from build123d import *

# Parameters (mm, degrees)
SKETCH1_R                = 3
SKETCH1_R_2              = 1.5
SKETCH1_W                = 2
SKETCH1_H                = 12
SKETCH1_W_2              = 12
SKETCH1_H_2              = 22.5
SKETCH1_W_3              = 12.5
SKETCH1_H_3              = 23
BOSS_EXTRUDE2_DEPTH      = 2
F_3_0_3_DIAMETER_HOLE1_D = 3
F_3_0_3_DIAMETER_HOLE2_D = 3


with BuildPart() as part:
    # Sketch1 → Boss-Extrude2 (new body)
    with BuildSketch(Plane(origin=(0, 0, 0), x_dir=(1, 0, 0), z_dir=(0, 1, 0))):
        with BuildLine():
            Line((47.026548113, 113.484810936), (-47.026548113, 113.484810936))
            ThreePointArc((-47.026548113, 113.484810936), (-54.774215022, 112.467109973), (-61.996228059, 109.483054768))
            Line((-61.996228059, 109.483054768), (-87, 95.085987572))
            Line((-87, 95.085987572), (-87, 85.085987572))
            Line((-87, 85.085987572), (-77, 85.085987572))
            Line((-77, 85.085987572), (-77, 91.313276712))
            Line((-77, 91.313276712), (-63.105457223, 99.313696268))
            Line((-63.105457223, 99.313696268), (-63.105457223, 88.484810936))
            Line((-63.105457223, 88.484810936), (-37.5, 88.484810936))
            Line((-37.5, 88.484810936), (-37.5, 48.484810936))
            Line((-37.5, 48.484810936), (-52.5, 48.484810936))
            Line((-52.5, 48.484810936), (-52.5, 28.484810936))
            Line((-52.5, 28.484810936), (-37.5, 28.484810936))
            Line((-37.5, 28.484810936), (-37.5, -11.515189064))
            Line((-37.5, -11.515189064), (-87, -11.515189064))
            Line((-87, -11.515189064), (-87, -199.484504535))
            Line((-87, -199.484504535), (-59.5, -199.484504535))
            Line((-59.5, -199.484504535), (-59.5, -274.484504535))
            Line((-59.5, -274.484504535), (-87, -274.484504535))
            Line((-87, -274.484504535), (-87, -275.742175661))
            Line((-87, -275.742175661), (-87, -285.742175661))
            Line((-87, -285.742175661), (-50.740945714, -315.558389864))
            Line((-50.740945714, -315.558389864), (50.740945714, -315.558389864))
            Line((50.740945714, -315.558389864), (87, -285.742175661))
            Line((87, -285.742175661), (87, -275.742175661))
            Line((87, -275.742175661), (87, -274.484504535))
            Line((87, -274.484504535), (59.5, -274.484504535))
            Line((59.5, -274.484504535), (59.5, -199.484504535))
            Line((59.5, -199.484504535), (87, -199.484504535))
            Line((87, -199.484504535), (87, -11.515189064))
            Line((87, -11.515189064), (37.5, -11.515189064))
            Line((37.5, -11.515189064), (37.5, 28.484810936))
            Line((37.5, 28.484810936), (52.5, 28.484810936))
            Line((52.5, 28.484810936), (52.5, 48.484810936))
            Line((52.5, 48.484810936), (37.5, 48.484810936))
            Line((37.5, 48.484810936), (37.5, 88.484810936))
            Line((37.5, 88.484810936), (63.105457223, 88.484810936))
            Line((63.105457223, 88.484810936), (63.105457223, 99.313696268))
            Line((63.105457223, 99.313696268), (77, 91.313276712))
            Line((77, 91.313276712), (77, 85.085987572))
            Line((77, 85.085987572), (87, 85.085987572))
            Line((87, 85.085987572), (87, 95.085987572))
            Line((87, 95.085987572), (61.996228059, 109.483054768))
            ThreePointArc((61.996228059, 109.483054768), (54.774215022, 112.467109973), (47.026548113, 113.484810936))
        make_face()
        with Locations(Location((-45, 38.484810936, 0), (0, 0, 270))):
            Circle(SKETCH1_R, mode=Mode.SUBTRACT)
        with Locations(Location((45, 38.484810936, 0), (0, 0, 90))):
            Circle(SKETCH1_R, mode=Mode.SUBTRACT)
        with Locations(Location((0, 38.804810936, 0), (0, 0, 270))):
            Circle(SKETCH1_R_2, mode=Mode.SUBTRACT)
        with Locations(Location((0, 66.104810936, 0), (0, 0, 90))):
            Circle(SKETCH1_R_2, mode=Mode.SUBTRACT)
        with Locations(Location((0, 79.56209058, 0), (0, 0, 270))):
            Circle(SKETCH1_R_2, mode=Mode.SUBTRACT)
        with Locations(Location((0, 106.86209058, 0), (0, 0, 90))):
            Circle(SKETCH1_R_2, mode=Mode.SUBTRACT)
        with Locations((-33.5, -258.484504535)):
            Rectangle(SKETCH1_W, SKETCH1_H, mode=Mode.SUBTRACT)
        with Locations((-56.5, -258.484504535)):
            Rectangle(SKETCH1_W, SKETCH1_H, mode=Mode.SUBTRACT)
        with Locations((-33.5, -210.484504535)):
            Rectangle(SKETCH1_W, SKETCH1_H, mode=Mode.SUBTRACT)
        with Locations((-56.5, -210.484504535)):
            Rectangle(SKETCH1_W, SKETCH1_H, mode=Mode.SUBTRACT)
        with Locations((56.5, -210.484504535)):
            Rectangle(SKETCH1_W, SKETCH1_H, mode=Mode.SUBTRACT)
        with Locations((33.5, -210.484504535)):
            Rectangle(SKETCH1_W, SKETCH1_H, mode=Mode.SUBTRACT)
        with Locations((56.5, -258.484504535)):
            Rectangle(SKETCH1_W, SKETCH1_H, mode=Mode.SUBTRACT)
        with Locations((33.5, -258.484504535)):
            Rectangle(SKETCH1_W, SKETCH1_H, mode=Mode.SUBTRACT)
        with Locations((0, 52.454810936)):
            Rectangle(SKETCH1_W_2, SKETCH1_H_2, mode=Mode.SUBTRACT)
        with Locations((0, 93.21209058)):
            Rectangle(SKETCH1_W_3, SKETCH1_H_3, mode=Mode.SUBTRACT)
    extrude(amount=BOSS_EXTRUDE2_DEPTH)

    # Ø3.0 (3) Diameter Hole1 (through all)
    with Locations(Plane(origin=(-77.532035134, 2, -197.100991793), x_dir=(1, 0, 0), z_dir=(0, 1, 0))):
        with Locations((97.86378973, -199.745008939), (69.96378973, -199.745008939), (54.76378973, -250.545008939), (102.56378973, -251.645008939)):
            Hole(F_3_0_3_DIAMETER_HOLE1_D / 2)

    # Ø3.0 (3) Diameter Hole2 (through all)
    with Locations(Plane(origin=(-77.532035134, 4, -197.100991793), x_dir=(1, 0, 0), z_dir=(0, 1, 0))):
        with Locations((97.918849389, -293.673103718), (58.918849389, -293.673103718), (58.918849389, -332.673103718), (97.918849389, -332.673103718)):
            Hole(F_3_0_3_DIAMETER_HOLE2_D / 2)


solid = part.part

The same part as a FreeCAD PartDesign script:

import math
import FreeCAD as App
import Part
import Sketcher

V = App.Vector

doc = App.newDocument("Part")
body = doc.addObject("PartDesign::Body", "Body")

sketch1 = doc.addObject("Sketcher::SketchObject", "Sketch")
body.addObject(sketch1)
sketch1.AttachmentSupport = (doc.XZ_Plane, [""])
sketch1.MapMode = "FlatFace"
sketch1.addGeometry(Part.LineSegment(V(47, -113.5, 0), V(-47, -113.5, 0)), False)
sketch1.addGeometry(Part.ArcOfCircle(Part.Circle(V(-47, -83.5, 0), V(0, 0, 1), 30), math.radians(-120), math.radians(-90)), False)
sketch1.addGeometry(Part.LineSegment(V(-62, -109.5, 0), V(-87, -95.1, 0)), False)
sketch1.addGeometry(Part.LineSegment(V(-87, -95.1, 0), V(-87, -85.1, 0)), False)
sketch1.addGeometry(Part.LineSegment(V(-87, -85.1, 0), V(-77, -85.1, 0)), False)
sketch1.addGeometry(Part.LineSegment(V(-77, -85.1, 0), V(-77, -91.3, 0)), False)
sketch1.addGeometry(Part.LineSegment(V(-77, -91.3, 0), V(-63.1, -99.3, 0)), False)
sketch1.addGeometry(Part.LineSegment(V(-63.1, -99.3, 0), V(-63.1, -88.5, 0)), False)
sketch1.addGeometry(Part.LineSegment(V(-63.1, -88.5, 0), V(-37.5, -88.5, 0)), False)
sketch1.addGeometry(Part.LineSegment(V(-37.5, -88.5, 0), V(-37.5, -48.5, 0)), False)
sketch1.addGeometry(Part.LineSegment(V(-37.5, -48.5, 0), V(-52.5, -48.5, 0)), False)
sketch1.addGeometry(Part.LineSegment(V(-52.5, -48.5, 0), V(-52.5, -28.5, 0)), False)
sketch1.addGeometry(Part.LineSegment(V(-52.5, -28.5, 0), V(-37.5, -28.5, 0)), False)
sketch1.addGeometry(Part.LineSegment(V(-37.5, -28.5, 0), V(-37.5, 11.5, 0)), False)
sketch1.addGeometry(Part.LineSegment(V(-37.5, 11.5, 0), V(-87, 11.5, 0)), False)
sketch1.addGeometry(Part.LineSegment(V(-87, 11.5, 0), V(-87, 199.5, 0)), False)
sketch1.addGeometry(Part.LineSegment(V(-87, 199.5, 0), V(-59.5, 199.5, 0)), False)
sketch1.addGeometry(Part.LineSegment(V(-59.5, 199.5, 0), V(-59.5, 274.5, 0)), False)
sketch1.addGeometry(Part.LineSegment(V(-59.5, 274.5, 0), V(-87, 274.5, 0)), False)
sketch1.addGeometry(Part.LineSegment(V(-87, 274.5, 0), V(-87, 285.7, 0)), False)
sketch1.addGeometry(Part.LineSegment(V(-87, 285.7, 0), V(-50.7, 315.6, 0)), False)
sketch1.addGeometry(Part.LineSegment(V(-50.7, 315.6, 0), V(50.7, 315.6, 0)), False)
sketch1.addGeometry(Part.LineSegment(V(50.7, 315.6, 0), V(87, 285.7, 0)), False)
sketch1.addGeometry(Part.LineSegment(V(87, 285.7, 0), V(87, 274.5, 0)), False)
sketch1.addGeometry(Part.LineSegment(V(87, 274.5, 0), V(59.5, 274.5, 0)), False)
sketch1.addGeometry(Part.LineSegment(V(59.5, 274.5, 0), V(59.5, 199.5, 0)), False)
sketch1.addGeometry(Part.LineSegment(V(59.5, 199.5, 0), V(87, 199.5, 0)), False)
sketch1.addGeometry(Part.LineSegment(V(87, 199.5, 0), V(87, 11.5, 0)), False)
sketch1.addGeometry(Part.LineSegment(V(87, 11.5, 0), V(37.5, 11.5, 0)), False)
sketch1.addGeometry(Part.LineSegment(V(37.5, 11.5, 0), V(37.5, -28.5, 0)), False)
sketch1.addGeometry(Part.LineSegment(V(37.5, -28.5, 0), V(52.5, -28.5, 0)), False)
sketch1.addGeometry(Part.LineSegment(V(52.5, -28.5, 0), V(52.5, -48.5, 0)), False)
sketch1.addGeometry(Part.LineSegment(V(52.5, -48.5, 0), V(37.5, -48.5, 0)), False)
sketch1.addGeometry(Part.LineSegment(V(37.5, -48.5, 0), V(37.5, -88.5, 0)), False)
sketch1.addGeometry(Part.LineSegment(V(37.5, -88.5, 0), V(63.1, -88.5, 0)), False)
sketch1.addGeometry(Part.LineSegment(V(63.1, -88.5, 0), V(63.1, -99.3, 0)), False)
sketch1.addGeometry(Part.LineSegment(V(63.1, -99.3, 0), V(77, -91.3, 0)), False)
sketch1.addGeometry(Part.LineSegment(V(77, -91.3, 0), V(77, -85.1, 0)), False)
sketch1.addGeometry(Part.LineSegment(V(77, -85.1, 0), V(87, -85.1, 0)), False)
sketch1.addGeometry(Part.LineSegment(V(87, -85.1, 0), V(87, -95.1, 0)), False)
sketch1.addGeometry(Part.LineSegment(V(87, -95.1, 0), V(62, -109.5, 0)), False)
sketch1.addGeometry(Part.ArcOfCircle(Part.Circle(V(47, -83.5, 0), V(0, 0, 1), 30), math.radians(-90), math.radians(-60)), False)
sketch1.addGeometry(Part.LineSegment(V(-55.5, 264.5, 0), V(-57.5, 264.5, 0)), False)
sketch1.addGeometry(Part.LineSegment(V(-57.5, 264.5, 0), V(-57.5, 252.5, 0)), False)
sketch1.addGeometry(Part.LineSegment(V(-57.5, 252.5, 0), V(-55.5, 252.5, 0)), False)
sketch1.addGeometry(Part.LineSegment(V(-55.5, 252.5, 0), V(-55.5, 264.5, 0)), False)
sketch1.addGeometry(Part.LineSegment(V(-32.5, 264.5, 0), V(-34.5, 264.5, 0)), False)
sketch1.addGeometry(Part.LineSegment(V(-34.5, 264.5, 0), V(-34.5, 252.5, 0)), False)
sketch1.addGeometry(Part.LineSegment(V(-34.5, 252.5, 0), V(-32.5, 252.5, 0)), False)
sketch1.addGeometry(Part.LineSegment(V(-32.5, 252.5, 0), V(-32.5, 264.5, 0)), False)
sketch1.addGeometry(Part.LineSegment(V(-55.5, 216.5, 0), V(-57.5, 216.5, 0)), False)
sketch1.addGeometry(Part.LineSegment(V(-57.5, 216.5, 0), V(-57.5, 204.5, 0)), False)
sketch1.addGeometry(Part.LineSegment(V(-57.5, 204.5, 0), V(-55.5, 204.5, 0)), False)
sketch1.addGeometry(Part.LineSegment(V(-55.5, 204.5, 0), V(-55.5, 216.5, 0)), False)
sketch1.addGeometry(Part.LineSegment(V(-32.5, 216.5, 0), V(-34.5, 216.5, 0)), False)
sketch1.addGeometry(Part.LineSegment(V(-34.5, 216.5, 0), V(-34.5, 204.5, 0)), False)
sketch1.addGeometry(Part.LineSegment(V(-34.5, 204.5, 0), V(-32.5, 204.5, 0)), False)
sketch1.addGeometry(Part.LineSegment(V(-32.5, 204.5, 0), V(-32.5, 216.5, 0)), False)
sketch1.addGeometry(Part.LineSegment(V(34.5, 264.5, 0), V(32.5, 264.5, 0)), False)
sketch1.addGeometry(Part.LineSegment(V(32.5, 264.5, 0), V(32.5, 252.5, 0)), False)
sketch1.addGeometry(Part.LineSegment(V(32.5, 252.5, 0), V(34.5, 252.5, 0)), False)
sketch1.addGeometry(Part.LineSegment(V(34.5, 252.5, 0), V(34.5, 264.5, 0)), False)
sketch1.addGeometry(Part.LineSegment(V(57.5, 264.5, 0), V(55.5, 264.5, 0)), False)
sketch1.addGeometry(Part.LineSegment(V(55.5, 264.5, 0), V(55.5, 252.5, 0)), False)
sketch1.addGeometry(Part.LineSegment(V(55.5, 252.5, 0), V(57.5, 252.5, 0)), False)
sketch1.addGeometry(Part.LineSegment(V(57.5, 252.5, 0), V(57.5, 264.5, 0)), False)
sketch1.addGeometry(Part.LineSegment(V(34.5, 216.5, 0), V(32.5, 216.5, 0)), False)
sketch1.addGeometry(Part.LineSegment(V(32.5, 216.5, 0), V(32.5, 204.5, 0)), False)
sketch1.addGeometry(Part.LineSegment(V(32.5, 204.5, 0), V(34.5, 204.5, 0)), False)
sketch1.addGeometry(Part.LineSegment(V(34.5, 204.5, 0), V(34.5, 216.5, 0)), False)
sketch1.addGeometry(Part.LineSegment(V(57.5, 216.5, 0), V(55.5, 216.5, 0)), False)
sketch1.addGeometry(Part.LineSegment(V(55.5, 216.5, 0), V(55.5, 204.5, 0)), False)
sketch1.addGeometry(Part.LineSegment(V(55.5, 204.5, 0), V(57.5, 204.5, 0)), False)
sketch1.addGeometry(Part.LineSegment(V(57.5, 204.5, 0), V(57.5, 216.5, 0)), False)
sketch1.addGeometry(Part.Circle(V(-45, -38.5, 0), V(0, 0, 1), 3), False)
sketch1.addGeometry(Part.Circle(V(0, -38.8, 0), V(0, 0, 1), 1.5), False)
sketch1.addGeometry(Part.LineSegment(V(6, -41.2, 0), V(-6, -41.2, 0)), False)
sketch1.addGeometry(Part.LineSegment(V(-6, -41.2, 0), V(-6, -63.7, 0)), False)
sketch1.addGeometry(Part.LineSegment(V(-6, -63.7, 0), V(6, -63.7, 0)), False)
sketch1.addGeometry(Part.LineSegment(V(6, -63.7, 0), V(6, -41.2, 0)), False)
sketch1.addGeometry(Part.Circle(V(0, -66.1, 0), V(0, 0, 1), 1.5), False)
sketch1.addGeometry(Part.Circle(V(0, -79.6, 0), V(0, 0, 1), 1.5), False)
sketch1.addGeometry(Part.LineSegment(V(6.2, -81.7, 0), V(-6.2, -81.7, 0)), False)
sketch1.addGeometry(Part.LineSegment(V(-6.2, -81.7, 0), V(-6.2, -104.7, 0)), False)
sketch1.addGeometry(Part.LineSegment(V(-6.2, -104.7, 0), V(6.2, -104.7, 0)), False)
sketch1.addGeometry(Part.LineSegment(V(6.2, -104.7, 0), V(6.2, -81.7, 0)), False)
sketch1.addGeometry(Part.Circle(V(0, -106.9, 0), V(0, 0, 1), 1.5), False)
sketch1.addGeometry(Part.Circle(V(45, -38.5, 0), V(0, 0, 1), 3), False)
sketch1.addConstraint(Sketcher.Constraint("Tangent", 0, 2, 1, 2))
sketch1.addConstraint(Sketcher.Constraint("Tangent", 1, 1, 2, 1))
sketch1.addConstraint(Sketcher.Constraint("Coincident", 2, 2, 3, 1))
sketch1.addConstraint(Sketcher.Constraint("Coincident", 3, 2, 4, 1))
sketch1.addConstraint(Sketcher.Constraint("Coincident", 4, 2, 5, 1))
sketch1.addConstraint(Sketcher.Constraint("Coincident", 5, 2, 6, 1))
sketch1.addConstraint(Sketcher.Constraint("Coincident", 6, 2, 7, 1))
sketch1.addConstraint(Sketcher.Constraint("Coincident", 7, 2, 8, 1))
sketch1.addConstraint(Sketcher.Constraint("Coincident", 8, 2, 9, 1))
sketch1.addConstraint(Sketcher.Constraint("Coincident", 9, 2, 10, 1))
sketch1.addConstraint(Sketcher.Constraint("Coincident", 10, 2, 11, 1))
sketch1.addConstraint(Sketcher.Constraint("Coincident", 11, 2, 12, 1))
sketch1.addConstraint(Sketcher.Constraint("Coincident", 12, 2, 13, 1))
sketch1.addConstraint(Sketcher.Constraint("Coincident", 13, 2, 14, 1))
sketch1.addConstraint(Sketcher.Constraint("Coincident", 14, 2, 15, 1))
sketch1.addConstraint(Sketcher.Constraint("Coincident", 15, 2, 16, 1))
sketch1.addConstraint(Sketcher.Constraint("Coincident", 16, 2, 17, 1))
sketch1.addConstraint(Sketcher.Constraint("Coincident", 17, 2, 18, 1))
sketch1.addConstraint(Sketcher.Constraint("Coincident", 18, 2, 19, 1))
sketch1.addConstraint(Sketcher.Constraint("Coincident", 19, 2, 20, 1))
sketch1.addConstraint(Sketcher.Constraint("Coincident", 20, 2, 21, 1))
sketch1.addConstraint(Sketcher.Constraint("Coincident", 21, 2, 22, 1))
sketch1.addConstraint(Sketcher.Constraint("Coincident", 22, 2, 23, 1))
sketch1.addConstraint(Sketcher.Constraint("Coincident", 23, 2, 24, 1))
sketch1.addConstraint(Sketcher.Constraint("Coincident", 24, 2, 25, 1))
sketch1.addConstraint(Sketcher.Constraint("Coincident", 25, 2, 26, 1))
sketch1.addConstraint(Sketcher.Constraint("Coincident", 26, 2, 27, 1))
sketch1.addConstraint(Sketcher.Constraint("Coincident", 27, 2, 28, 1))
sketch1.addConstraint(Sketcher.Constraint("Coincident", 28, 2, 29, 1))
sketch1.addConstraint(Sketcher.Constraint("Coincident", 29, 2, 30, 1))
sketch1.addConstraint(Sketcher.Constraint("Coincident", 30, 2, 31, 1))
sketch1.addConstraint(Sketcher.Constraint("Coincident", 31, 2, 32, 1))
sketch1.addConstraint(Sketcher.Constraint("Coincident", 32, 2, 33, 1))
sketch1.addConstraint(Sketcher.Constraint("Coincident", 33, 2, 34, 1))
sketch1.addConstraint(Sketcher.Constraint("Coincident", 34, 2, 35, 1))
sketch1.addConstraint(Sketcher.Constraint("Coincident", 35, 2, 36, 1))
sketch1.addConstraint(Sketcher.Constraint("Coincident", 36, 2, 37, 1))
sketch1.addConstraint(Sketcher.Constraint("Coincident", 37, 2, 38, 1))
sketch1.addConstraint(Sketcher.Constraint("Coincident", 38, 2, 39, 1))
sketch1.addConstraint(Sketcher.Constraint("Coincident", 39, 2, 40, 1))
sketch1.addConstraint(Sketcher.Constraint("Tangent", 40, 2, 41, 2))
sketch1.addConstraint(Sketcher.Constraint("Tangent", 41, 1, 0, 1))
sketch1.addConstraint(Sketcher.Constraint("Coincident", 42, 2, 43, 1))
sketch1.addConstraint(Sketcher.Constraint("Coincident", 43, 2, 44, 1))
sketch1.addConstraint(Sketcher.Constraint("Coincident", 44, 2, 45, 1))
sketch1.addConstraint(Sketcher.Constraint("Coincident", 45, 2, 42, 1))
sketch1.addConstraint(Sketcher.Constraint("Coincident", 46, 2, 47, 1))
sketch1.addConstraint(Sketcher.Constraint("Coincident", 47, 2, 48, 1))
sketch1.addConstraint(Sketcher.Constraint("Coincident", 48, 2, 49, 1))
sketch1.addConstraint(Sketcher.Constraint("Coincident", 49, 2, 46, 1))
sketch1.addConstraint(Sketcher.Constraint("Coincident", 50, 2, 51, 1))
sketch1.addConstraint(Sketcher.Constraint("Coincident", 51, 2, 52, 1))
sketch1.addConstraint(Sketcher.Constraint("Coincident", 52, 2, 53, 1))
sketch1.addConstraint(Sketcher.Constraint("Coincident", 53, 2, 50, 1))
sketch1.addConstraint(Sketcher.Constraint("Coincident", 54, 2, 55, 1))
sketch1.addConstraint(Sketcher.Constraint("Coincident", 55, 2, 56, 1))
sketch1.addConstraint(Sketcher.Constraint("Coincident", 56, 2, 57, 1))
sketch1.addConstraint(Sketcher.Constraint("Coincident", 57, 2, 54, 1))
sketch1.addConstraint(Sketcher.Constraint("Coincident", 58, 2, 59, 1))
sketch1.addConstraint(Sketcher.Constraint("Coincident", 59, 2, 60, 1))
sketch1.addConstraint(Sketcher.Constraint("Coincident", 60, 2, 61, 1))
sketch1.addConstraint(Sketcher.Constraint("Coincident", 61, 2, 58, 1))
sketch1.addConstraint(Sketcher.Constraint("Coincident", 62, 2, 63, 1))
sketch1.addConstraint(Sketcher.Constraint("Coincident", 63, 2, 64, 1))
sketch1.addConstraint(Sketcher.Constraint("Coincident", 64, 2, 65, 1))
sketch1.addConstraint(Sketcher.Constraint("Coincident", 65, 2, 62, 1))
sketch1.addConstraint(Sketcher.Constraint("Coincident", 66, 2, 67, 1))
sketch1.addConstraint(Sketcher.Constraint("Coincident", 67, 2, 68, 1))
sketch1.addConstraint(Sketcher.Constraint("Coincident", 68, 2, 69, 1))
sketch1.addConstraint(Sketcher.Constraint("Coincident", 69, 2, 66, 1))
sketch1.addConstraint(Sketcher.Constraint("Coincident", 70, 2, 71, 1))
sketch1.addConstraint(Sketcher.Constraint("Coincident", 71, 2, 72, 1))
sketch1.addConstraint(Sketcher.Constraint("Coincident", 72, 2, 73, 1))
sketch1.addConstraint(Sketcher.Constraint("Coincident", 73, 2, 70, 1))
sketch1.addConstraint(Sketcher.Constraint("Coincident", 76, 2, 77, 1))
sketch1.addConstraint(Sketcher.Constraint("Coincident", 77, 2, 78, 1))
sketch1.addConstraint(Sketcher.Constraint("Coincident", 78, 2, 79, 1))
sketch1.addConstraint(Sketcher.Constraint("Coincident", 79, 2, 76, 1))
sketch1.addConstraint(Sketcher.Constraint("Coincident", 82, 2, 83, 1))
sketch1.addConstraint(Sketcher.Constraint("Coincident", 83, 2, 84, 1))
sketch1.addConstraint(Sketcher.Constraint("Coincident", 84, 2, 85, 1))
sketch1.addConstraint(Sketcher.Constraint("Coincident", 85, 2, 82, 1))
sketch1.addConstraint(Sketcher.Constraint("Horizontal", 0))
sketch1.addConstraint(Sketcher.Constraint("Vertical", 3))
sketch1.addConstraint(Sketcher.Constraint("Horizontal", 4))
sketch1.addConstraint(Sketcher.Constraint("Vertical", 5))
sketch1.addConstraint(Sketcher.Constraint("Vertical", 7))
sketch1.addConstraint(Sketcher.Constraint("Horizontal", 8))
sketch1.addConstraint(Sketcher.Constraint("Vertical", 9))
sketch1.addConstraint(Sketcher.Constraint("Horizontal", 10))
sketch1.addConstraint(Sketcher.Constraint("Vertical", 11))
sketch1.addConstraint(Sketcher.Constraint("Horizontal", 12))
sketch1.addConstraint(Sketcher.Constraint("Vertical", 13))
sketch1.addConstraint(Sketcher.Constraint("Horizontal", 14))
sketch1.addConstraint(Sketcher.Constraint("Vertical", 15))
sketch1.addConstraint(Sketcher.Constraint("Horizontal", 16))
sketch1.addConstraint(Sketcher.Constraint("Vertical", 17))
sketch1.addConstraint(Sketcher.Constraint("Horizontal", 18))
sketch1.addConstraint(Sketcher.Constraint("Vertical", 19))
sketch1.addConstraint(Sketcher.Constraint("Horizontal", 21))
sketch1.addConstraint(Sketcher.Constraint("Vertical", 23))
sketch1.addConstraint(Sketcher.Constraint("Horizontal", 24))
sketch1.addConstraint(Sketcher.Constraint("Vertical", 25))
sketch1.addConstraint(Sketcher.Constraint("Horizontal", 26))
sketch1.addConstraint(Sketcher.Constraint("Vertical", 27))
sketch1.addConstraint(Sketcher.Constraint("Horizontal", 28))
sketch1.addConstraint(Sketcher.Constraint("Vertical", 29))
sketch1.addConstraint(Sketcher.Constraint("Horizontal", 30))
sketch1.addConstraint(Sketcher.Constraint("Vertical", 31))
sketch1.addConstraint(Sketcher.Constraint("Horizontal", 32))
sketch1.addConstraint(Sketcher.Constraint("Vertical", 33))
sketch1.addConstraint(Sketcher.Constraint("Horizontal", 34))
sketch1.addConstraint(Sketcher.Constraint("Vertical", 35))
sketch1.addConstraint(Sketcher.Constraint("Vertical", 37))
sketch1.addConstraint(Sketcher.Constraint("Horizontal", 38))
sketch1.addConstraint(Sketcher.Constraint("Vertical", 39))
sketch1.addConstraint(Sketcher.Constraint("Horizontal", 42))
sketch1.addConstraint(Sketcher.Constraint("Vertical", 43))
sketch1.addConstraint(Sketcher.Constraint("Horizontal", 44))
sketch1.addConstraint(Sketcher.Constraint("Vertical", 45))
sketch1.addConstraint(Sketcher.Constraint("Horizontal", 46))
sketch1.addConstraint(Sketcher.Constraint("Vertical", 47))
sketch1.addConstraint(Sketcher.Constraint("Horizontal", 48))
sketch1.addConstraint(Sketcher.Constraint("Vertical", 49))
sketch1.addConstraint(Sketcher.Constraint("Horizontal", 50))
sketch1.addConstraint(Sketcher.Constraint("Vertical", 51))
sketch1.addConstraint(Sketcher.Constraint("Horizontal", 52))
sketch1.addConstraint(Sketcher.Constraint("Vertical", 53))
sketch1.addConstraint(Sketcher.Constraint("Horizontal", 54))
sketch1.addConstraint(Sketcher.Constraint("Vertical", 55))
sketch1.addConstraint(Sketcher.Constraint("Horizontal", 56))
sketch1.addConstraint(Sketcher.Constraint("Vertical", 57))
sketch1.addConstraint(Sketcher.Constraint("Horizontal", 58))
sketch1.addConstraint(Sketcher.Constraint("Vertical", 59))
sketch1.addConstraint(Sketcher.Constraint("Horizontal", 60))
sketch1.addConstraint(Sketcher.Constraint("Vertical", 61))
sketch1.addConstraint(Sketcher.Constraint("Horizontal", 62))
sketch1.addConstraint(Sketcher.Constraint("Vertical", 63))
sketch1.addConstraint(Sketcher.Constraint("Horizontal", 64))
sketch1.addConstraint(Sketcher.Constraint("Vertical", 65))
sketch1.addConstraint(Sketcher.Constraint("Horizontal", 66))
sketch1.addConstraint(Sketcher.Constraint("Vertical", 67))
sketch1.addConstraint(Sketcher.Constraint("Horizontal", 68))
sketch1.addConstraint(Sketcher.Constraint("Vertical", 69))
sketch1.addConstraint(Sketcher.Constraint("Horizontal", 70))
sketch1.addConstraint(Sketcher.Constraint("Vertical", 71))
sketch1.addConstraint(Sketcher.Constraint("Horizontal", 72))
sketch1.addConstraint(Sketcher.Constraint("Vertical", 73))
sketch1.addConstraint(Sketcher.Constraint("Horizontal", 76))
sketch1.addConstraint(Sketcher.Constraint("Vertical", 77))
sketch1.addConstraint(Sketcher.Constraint("Horizontal", 78))
sketch1.addConstraint(Sketcher.Constraint("Vertical", 79))
sketch1.addConstraint(Sketcher.Constraint("Horizontal", 82))
sketch1.addConstraint(Sketcher.Constraint("Vertical", 83))
sketch1.addConstraint(Sketcher.Constraint("Horizontal", 84))
sketch1.addConstraint(Sketcher.Constraint("Vertical", 85))
sketch1.addConstraint(Sketcher.Constraint("Equal", 1, 41))
sketch1.addConstraint(Sketcher.Constraint("Equal", 75, 80))
sketch1.addConstraint(Sketcher.Constraint("Equal", 80, 81))
sketch1.addConstraint(Sketcher.Constraint("Equal", 81, 86))
sketch1.addConstraint(Sketcher.Constraint("Equal", 74, 87))
sketch1.addConstraint(Sketcher.Constraint("Symmetric", 74, 3, 87, 3, -2))
sketch1.addConstraint(Sketcher.Constraint("Symmetric", 19, 2, 22, 2, -2))
sketch1.addConstraint(Sketcher.Constraint("Symmetric", 17, 2, 24, 2, -2))
sketch1.addConstraint(Sketcher.Constraint("Symmetric", 15, 2, 26, 2, -2))
sketch1.addConstraint(Sketcher.Constraint("Symmetric", 13, 2, 28, 2, -2))
sketch1.addConstraint(Sketcher.Constraint("Symmetric", 11, 2, 30, 2, -2))
sketch1.addConstraint(Sketcher.Constraint("Symmetric", 9, 2, 32, 2, -2))
sketch1.addConstraint(Sketcher.Constraint("Symmetric", 7, 2, 34, 2, -2))
sketch1.addConstraint(Sketcher.Constraint("Symmetric", 5, 2, 36, 2, -2))
sketch1.addConstraint(Sketcher.Constraint("Symmetric", 3, 2, 38, 2, -2))
sketch1.addConstraint(Sketcher.Constraint("Symmetric", 1, 1, 40, 2, -2))
sketch1.addConstraint(Sketcher.Constraint("Symmetric", 49, 2, 58, 2, -2))
sketch1.addConstraint(Sketcher.Constraint("Symmetric", 47, 2, 60, 2, -2))
sketch1.addConstraint(Sketcher.Constraint("Symmetric", 45, 2, 62, 2, -2))
sketch1.addConstraint(Sketcher.Constraint("Symmetric", 43, 2, 64, 2, -2))
sketch1.addConstraint(Sketcher.Constraint("Symmetric", 57, 2, 66, 2, -2))
sketch1.addConstraint(Sketcher.Constraint("Symmetric", 55, 2, 68, 2, -2))
sketch1.addConstraint(Sketcher.Constraint("Symmetric", 53, 2, 70, 2, -2))
sketch1.addConstraint(Sketcher.Constraint("Symmetric", 51, 2, 72, 2, -2))
sketch1.addConstraint(Sketcher.Constraint("PointOnObject", 75, 3, -2))
sketch1.addConstraint(Sketcher.Constraint("PointOnObject", 80, 3, -2))
sketch1.addConstraint(Sketcher.Constraint("PointOnObject", 81, 3, -2))
sketch1.addConstraint(Sketcher.Constraint("PointOnObject", 86, 3, -2))
sketch1.addConstraint(Sketcher.Constraint("Parallel", 2, 6))
sketch1.addConstraint(Sketcher.Constraint("Parallel", 36, 40))
sketch1.addConstraint(Sketcher.Constraint("Horizontal", 45, 2, 46, 2))
sketch1.addConstraint(Sketcher.Constraint("Horizontal", 44, 2, 47, 2))
sketch1.addConstraint(Sketcher.Constraint("Horizontal", 53, 2, 54, 2))
sketch1.addConstraint(Sketcher.Constraint("Horizontal", 52, 2, 55, 2))
sketch1.addConstraint(Sketcher.Constraint("Vertical", 9, 2, 12, 2))
sketch1.addConstraint(Sketcher.Constraint("Vertical", 3, 2, 14, 2))
sketch1.addConstraint(Sketcher.Constraint("Vertical", 15, 2, 18, 2))
sketch1.addConstraint(Sketcher.Constraint("Vertical", 43, 2, 50, 2))
sketch1.addConstraint(Sketcher.Constraint("Vertical", 45, 2, 52, 2))
sketch1.addConstraint(Sketcher.Constraint("Vertical", 47, 2, 54, 2))
sketch1.addConstraint(Sketcher.Constraint("Vertical", 49, 2, 56, 2))
sketch1.addConstraint(Sketcher.Constraint("Equal", 44, 46))
sketch1.addConstraint(Sketcher.Constraint("Equal", 38, 3))
sketch1.addConstraint(Sketcher.Constraint("Equal", 9, 13))
sketch1.addConstraint(Sketcher.Constraint("Equal", 78, 43))
sketch1.addConstraint(Sketcher.Constraint("Equal", 49, 51))
sketch1.addConstraint(Sketcher.Constraint("Equal", 20, 22))
sketch1.addConstraint(Sketcher.Constraint("Diameter", 74, 6.0))
sketch1.addConstraint(Sketcher.Constraint("Diameter", 75, 3.0))
sketch1.addConstraint(Sketcher.Constraint("Radius", 1, 30.0))
sketch1.addConstraint(Sketcher.Constraint("DistanceX", 4, 1, 4, 2, 10.0))
sketch1.addConstraint(Sketcher.Constraint("DistanceX", 10, 2, 10, 1, 15.0))
sketch1.addConstraint(Sketcher.Constraint("DistanceX", 42, 2, 42, 1, 2.0))
sketch1.addConstraint(Sketcher.Constraint("DistanceX", 76, 2, 76, 1, 12.0))
sketch1.addConstraint(Sketcher.Constraint("DistanceY", 9, 1, 9, 2, 40.0))
sketch1.addConstraint(Sketcher.Constraint("DistanceY", 11, 1, 11, 2, 20.0))
sketch1.addConstraint(Sketcher.Constraint("DistanceY", 17, 1, 17, 2, 75.0))
sketch1.addConstraint(Sketcher.Constraint("DistanceY", 83, 2, 83, 1, 23.0))
sketch1.addConstraint(Sketcher.Constraint("DistanceX", 14, 2, 14, 1, 49.5))
sketch1.addConstraint(Sketcher.Constraint("DistanceX", 16, 1, 16, 2, 27.5))
sketch1.addConstraint(Sketcher.Constraint("DistanceX", 82, 2, 82, 1, 12.5))
sketch1.addConstraint(Sketcher.Constraint("DistanceY", 77, 2, 77, 1, 22.5))
sketch1.addConstraint(Sketcher.Constraint("DistanceX", 74, 3, -1, 1, 45.0))
sketch1.addConstraint(Sketcher.Constraint("DistanceX", 2, 2, -1, 1, 87.0))
sketch1.addConstraint(Sketcher.Constraint("DistanceX", 76, 2, -1, 1, 6.0))
sketch1.addConstraint(Sketcher.Constraint("DistanceX", 42, 2, -1, 1, 57.5))
sketch1.addConstraint(Sketcher.Constraint("DistanceX", 46, 2, -1, 1, 34.5))
sketch1.addConstraint(Sketcher.Constraint("DistanceX", 82, 2, -1, 1, 6.25))
sketch1.addConstraint(Sketcher.Constraint("DistanceX", 21, 1, 21, 2, 101.481891))
sketch1.addConstraint(Sketcher.Constraint("DistanceY", 5, 2, 5, 1, 6.227289))
sketch1.addConstraint(Sketcher.Constraint("DistanceY", 19, 1, 19, 2, 11.257671))
sketch1.addConstraint(Sketcher.Constraint("DistanceX", 0, 2, 0, 1, 94.053096))
sketch1.addConstraint(Sketcher.Constraint("DistanceX", 8, 1, 8, 2, 25.605457))
sketch1.addConstraint(Sketcher.Constraint("DistanceY", 7, 1, 7, 2, 10.828885))
sketch1.addConstraint(Sketcher.Constraint("DistanceY", 15, 1, 15, 2, 187.969315))
sketch1.addConstraint(Sketcher.Constraint("DistanceY", 1, 3, -1, 1, 83.484811))
sketch1.addConstraint(Sketcher.Constraint("DistanceY", 74, 3, -1, 1, 38.484811))
sketch1.addConstraint(Sketcher.Constraint("DistanceY", 75, 3, -1, 1, 38.804811))
sketch1.addConstraint(Sketcher.Constraint("DistanceY", 80, 3, -1, 1, 66.104811))
sketch1.addConstraint(Sketcher.Constraint("DistanceY", 81, 3, -1, 1, 79.562091))
sketch1.addConstraint(Sketcher.Constraint("DistanceY", 86, 3, -1, 1, 106.862091))
sketch1.addConstraint(Sketcher.Constraint("DistanceX", 1, 1, -1, 1, 61.996228))
sketch1.addConstraint(Sketcher.Constraint("DistanceY", -1, 1, 20, 2, 315.55839))
sketch1.addConstraint(Sketcher.Constraint("DistanceY", 76, 2, -1, 1, 41.204811))
sketch1.addConstraint(Sketcher.Constraint("DistanceY", 82, 2, -1, 1, 81.712091))
sketch1.addConstraint(Sketcher.Constraint("DistanceY", -1, 1, 42, 2, 264.484505))
sketch1.addConstraint(Sketcher.Constraint("DistanceY", -1, 1, 50, 2, 216.484505))
pad1 = doc.addObject("PartDesign::Pad", "Pad")
body.addObject(pad1)
pad1.Profile = sketch1
pad1.Length = 2
pad1.Reversed = True

sketch2 = doc.addObject("Sketcher::SketchObject", "Sketch001")
body.addObject(sketch2)
sketch2.AttachmentSupport = (doc.XZ_Plane, [""])
sketch2.MapMode = "FlatFace"
sketch2.AttachmentOffset = App.Placement(V(0, 0, -2), App.Rotation())
sketch2.addGeometry(Part.Circle(V(20.3, 2.6, 0), V(0, 0, 1), 1.5), False)
sketch2.addGeometry(Part.Circle(V(-7.6, 2.6, 0), V(0, 0, 1), 1.5), False)
sketch2.addGeometry(Part.Circle(V(-22.8, 53.4, 0), V(0, 0, 1), 1.5), False)
sketch2.addGeometry(Part.Circle(V(25, 54.5, 0), V(0, 0, 1), 1.5), False)
sketch2.addConstraint(Sketcher.Constraint("Equal", 0, 1))
sketch2.addConstraint(Sketcher.Constraint("Equal", 1, 2))
sketch2.addConstraint(Sketcher.Constraint("Equal", 2, 3))
sketch2.addConstraint(Sketcher.Constraint("Horizontal", 0, 3, 1, 3))
sketch2.addConstraint(Sketcher.Constraint("Diameter", 0, 3.0))
sketch2.addConstraint(Sketcher.Constraint("DistanceX", 1, 3, 0, 3, 27.9))
sketch2.addConstraint(Sketcher.Constraint("DistanceX", 2, 3, 1, 3, 15.2))
sketch2.addConstraint(Sketcher.Constraint("DistanceY", 1, 3, 2, 3, 50.8))
sketch2.addConstraint(Sketcher.Constraint("DistanceX", 2, 3, 3, 3, 47.8))
sketch2.addConstraint(Sketcher.Constraint("DistanceY", 2, 3, 3, 3, 1.1))
sketch2.addConstraint(Sketcher.Constraint("DistanceX", -1, 1, 0, 3, 20.331755))
sketch2.addConstraint(Sketcher.Constraint("DistanceY", -1, 1, 0, 3, 2.644017))
doc.recompute()
hole = doc.addObject("PartDesign::Hole", "Hole")
body.addObject(hole)
hole.Profile = sketch2
hole.ThreadType = "None"
hole.Diameter = 3
hole.DepthType = "ThroughAll"
hole.Reversed = True

sketch3 = doc.addObject("Sketcher::SketchObject", "Sketch002")
body.addObject(sketch3)
sketch3.AttachmentSupport = (doc.XZ_Plane, [""])
sketch3.MapMode = "FlatFace"
sketch3.AttachmentOffset = App.Placement(V(0, 0, -4), App.Rotation())
sketch3.addGeometry(Part.Circle(V(20.4, 96.6, 0), V(0, 0, 1), 1.5), False)
sketch3.addGeometry(Part.Circle(V(-18.6, 96.6, 0), V(0, 0, 1), 1.5), False)
sketch3.addGeometry(Part.Circle(V(-18.6, 135.6, 0), V(0, 0, 1), 1.5), False)
sketch3.addGeometry(Part.Circle(V(20.4, 135.6, 0), V(0, 0, 1), 1.5), False)
sketch3.addConstraint(Sketcher.Constraint("Equal", 0, 1))
sketch3.addConstraint(Sketcher.Constraint("Equal", 1, 2))
sketch3.addConstraint(Sketcher.Constraint("Equal", 2, 3))
sketch3.addConstraint(Sketcher.Constraint("Horizontal", 0, 3, 1, 3))
sketch3.addConstraint(Sketcher.Constraint("Horizontal", 2, 3, 3, 3))
sketch3.addConstraint(Sketcher.Constraint("Vertical", 1, 3, 2, 3))
sketch3.addConstraint(Sketcher.Constraint("Vertical", 0, 3, 3, 3))
sketch3.addConstraint(Sketcher.Constraint("Diameter", 0, 3.0))
sketch3.addConstraint(Sketcher.Constraint("DistanceX", 1, 3, 0, 3, 39.0))
sketch3.addConstraint(Sketcher.Constraint("DistanceY", 1, 3, 2, 3, 39.0))
sketch3.addConstraint(Sketcher.Constraint("DistanceY", -1, 1, 0, 3, 96.572112))
sketch3.addConstraint(Sketcher.Constraint("DistanceX", -1, 1, 0, 3, 20.386814))
doc.recompute()
hole2 = doc.addObject("PartDesign::Hole", "Hole001")
body.addObject(hole2)
hole2.Profile = sketch3
hole2.ThreadType = "None"
hole2.Diameter = 3
hole2.DepthType = "ThroughAll"
hole2.Reversed = True

doc.recompute()
